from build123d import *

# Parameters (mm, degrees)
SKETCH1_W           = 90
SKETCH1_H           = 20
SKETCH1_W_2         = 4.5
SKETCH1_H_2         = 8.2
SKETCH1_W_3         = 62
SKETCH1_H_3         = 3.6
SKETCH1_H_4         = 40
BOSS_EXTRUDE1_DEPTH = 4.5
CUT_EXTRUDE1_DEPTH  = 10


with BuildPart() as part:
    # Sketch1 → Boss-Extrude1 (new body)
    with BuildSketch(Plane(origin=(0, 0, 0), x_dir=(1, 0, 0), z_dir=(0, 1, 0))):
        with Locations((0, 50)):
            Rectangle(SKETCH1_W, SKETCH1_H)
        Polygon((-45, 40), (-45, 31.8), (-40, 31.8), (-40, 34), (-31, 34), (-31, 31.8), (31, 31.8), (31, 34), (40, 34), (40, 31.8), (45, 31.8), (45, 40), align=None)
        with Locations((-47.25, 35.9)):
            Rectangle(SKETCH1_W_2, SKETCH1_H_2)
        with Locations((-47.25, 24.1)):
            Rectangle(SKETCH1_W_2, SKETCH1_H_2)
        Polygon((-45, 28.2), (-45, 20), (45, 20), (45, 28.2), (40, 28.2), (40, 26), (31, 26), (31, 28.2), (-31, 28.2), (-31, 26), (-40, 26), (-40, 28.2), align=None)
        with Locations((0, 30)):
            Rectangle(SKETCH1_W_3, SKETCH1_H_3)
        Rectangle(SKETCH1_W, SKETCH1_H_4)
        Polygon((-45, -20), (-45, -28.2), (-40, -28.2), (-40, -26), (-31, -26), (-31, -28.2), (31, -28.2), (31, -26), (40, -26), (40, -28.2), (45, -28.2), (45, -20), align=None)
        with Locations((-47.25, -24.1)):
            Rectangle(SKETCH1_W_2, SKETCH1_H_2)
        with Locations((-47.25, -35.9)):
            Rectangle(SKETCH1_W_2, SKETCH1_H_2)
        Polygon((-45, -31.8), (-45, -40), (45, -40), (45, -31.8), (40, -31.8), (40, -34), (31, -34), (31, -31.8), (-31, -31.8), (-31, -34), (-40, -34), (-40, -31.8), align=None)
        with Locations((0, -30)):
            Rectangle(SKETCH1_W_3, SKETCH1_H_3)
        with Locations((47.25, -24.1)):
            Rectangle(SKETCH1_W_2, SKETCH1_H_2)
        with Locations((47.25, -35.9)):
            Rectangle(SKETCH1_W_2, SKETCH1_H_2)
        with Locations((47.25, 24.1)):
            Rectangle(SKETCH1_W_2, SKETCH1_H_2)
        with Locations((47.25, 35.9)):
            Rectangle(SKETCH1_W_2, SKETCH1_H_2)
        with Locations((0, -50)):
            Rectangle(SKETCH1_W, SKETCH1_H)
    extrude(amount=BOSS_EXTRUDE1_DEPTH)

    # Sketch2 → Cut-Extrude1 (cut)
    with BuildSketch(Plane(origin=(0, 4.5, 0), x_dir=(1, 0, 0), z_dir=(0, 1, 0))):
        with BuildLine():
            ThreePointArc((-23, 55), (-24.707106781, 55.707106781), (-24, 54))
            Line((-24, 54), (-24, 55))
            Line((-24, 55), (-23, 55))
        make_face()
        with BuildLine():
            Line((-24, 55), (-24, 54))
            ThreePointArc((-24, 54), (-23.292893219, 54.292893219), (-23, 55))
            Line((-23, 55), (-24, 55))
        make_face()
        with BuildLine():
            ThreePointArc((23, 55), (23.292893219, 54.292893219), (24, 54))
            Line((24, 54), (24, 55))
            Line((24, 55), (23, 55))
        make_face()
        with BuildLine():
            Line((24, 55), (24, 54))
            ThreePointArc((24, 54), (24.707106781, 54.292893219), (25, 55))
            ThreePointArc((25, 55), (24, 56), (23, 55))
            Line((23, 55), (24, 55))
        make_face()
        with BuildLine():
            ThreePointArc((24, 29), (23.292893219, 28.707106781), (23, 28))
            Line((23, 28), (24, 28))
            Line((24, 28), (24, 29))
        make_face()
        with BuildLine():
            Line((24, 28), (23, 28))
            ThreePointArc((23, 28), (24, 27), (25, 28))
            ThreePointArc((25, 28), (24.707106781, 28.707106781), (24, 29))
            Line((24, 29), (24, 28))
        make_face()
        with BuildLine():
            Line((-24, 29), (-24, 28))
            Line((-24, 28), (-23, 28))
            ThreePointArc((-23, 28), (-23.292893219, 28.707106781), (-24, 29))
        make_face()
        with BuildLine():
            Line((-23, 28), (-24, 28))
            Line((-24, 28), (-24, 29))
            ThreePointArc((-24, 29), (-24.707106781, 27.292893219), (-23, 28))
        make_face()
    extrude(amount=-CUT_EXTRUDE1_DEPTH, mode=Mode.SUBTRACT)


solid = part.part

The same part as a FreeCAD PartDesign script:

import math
import FreeCAD as App
import Part
import Sketcher
from FreeCAD import Vector
Q = App.Units.Quantity


def add_polygon(sketch, points):
    """Adds a closed chain of lines whose ends are joined by coincident constraints."""
    first, n = sketch.GeometryCount, len(points)
    for a, b in zip(points, points[1:] + points[:1]):
        sketch.addGeometry(Part.LineSegment(App.Vector(*a, 0), App.Vector(*b, 0)), False)
    for i in range(n):
        sketch.addConstraint(Sketcher.Constraint("Coincident", first + i, 2, first + (i + 1) % n, 1))

doc = App.newDocument("Part")
body = doc.addObject("PartDesign::Body", "Body")

# Sketch on XZ plane
sketch1 = body.newObject("Sketcher::SketchObject", "Sketch")
sketch1.AttachmentSupport = (doc.getObject("XZ_Plane"), [""])
sketch1.MapMode = "FlatFace"
add_polygon(sketch1, [(-45, -60), (-45, -40), (-49.5, -40), (-49.5, -31.8), (-40, -31.8), (-40, -34), (-31, -34), (-31, -26), (-40, -26), (-40, -28.2), (-49.5, -28.2), (-49.5, -20), (-45, -20), (-45, 20), (-49.5, 20), (-49.5, 28.2), (-40, 28.2), (-40, 26), (-31, 26), (-31, 34), (-40, 34), (-40, 31.8), (-49.5, 31.8), (-49.5, 40), (-45, 40), (-45, 60), (45, 60), (45, 40), (49.5, 40), (49.5, 31.8), (40, 31.8), (40, 34), (31, 34), (31, 26), (40, 26), (40, 28.2), (49.5, 28.2), (49.5, 20), (45, 20), (45, -20), (49.5, -20), (49.5, -28.2), (40, -28.2), (40, -26), (31, -26), (31, -34), (40, -34), (40, -31.8), (49.5, -31.8), (49.5, -40), (45, -40), (45, -60)])  # lines 0-51
sketch1.addConstraint(Sketcher.Constraint("Vertical", 0))
sketch1.addConstraint(Sketcher.Constraint("Horizontal", 1))
sketch1.addConstraint(Sketcher.Constraint("Vertical", 2))
sketch1.addConstraint(Sketcher.Constraint("Horizontal", 3))
sketch1.addConstraint(Sketcher.Constraint("Vertical", 4))
sketch1.addConstraint(Sketcher.Constraint("Horizontal", 5))
sketch1.addConstraint(Sketcher.Constraint("Vertical", 6))
sketch1.addConstraint(Sketcher.Constraint("Horizontal", 7))
sketch1.addConstraint(Sketcher.Constraint("Vertical", 8))
sketch1.addConstraint(Sketcher.Constraint("Horizontal", 9))
sketch1.addConstraint(Sketcher.Constraint("Vertical", 10))
sketch1.addConstraint(Sketcher.Constraint("Horizontal", 11))
sketch1.addConstraint(Sketcher.Constraint("Vertical", 12))
sketch1.addConstraint(Sketcher.Constraint("Horizontal", 13))
sketch1.addConstraint(Sketcher.Constraint("Vertical", 14))
sketch1.addConstraint(Sketcher.Constraint("Horizontal", 15))
sketch1.addConstraint(Sketcher.Constraint("Vertical", 16))
sketch1.addConstraint(Sketcher.Constraint("Horizontal", 17))
sketch1.addConstraint(Sketcher.Constraint("Vertical", 18))
sketch1.addConstraint(Sketcher.Constraint("Horizontal", 19))
sketch1.addConstraint(Sketcher.Constraint("Vertical", 20))
sketch1.addConstraint(Sketcher.Constraint("Horizontal", 21))
sketch1.addConstraint(Sketcher.Constraint("Vertical", 22))
sketch1.addConstraint(Sketcher.Constraint("Horizontal", 23))
sketch1.addConstraint(Sketcher.Constraint("Vertical", 24))
sketch1.addConstraint(Sketcher.Constraint("Horizontal", 25))
sketch1.addConstraint(Sketcher.Constraint("Vertical", 26))
sketch1.addConstraint(Sketcher.Constraint("Horizontal", 27))
sketch1.addConstraint(Sketcher.Constraint("Vertical", 28))
sketch1.addConstraint(Sketcher.Constraint("Horizontal", 29))
sketch1.addConstraint(Sketcher.Constraint("Vertical", 30))
sketch1.addConstraint(Sketcher.Constraint("Horizontal", 31))
sketch1.addConstraint(Sketcher.Constraint("Vertical", 32))
sketch1.addConstraint(Sketcher.Constraint("Horizontal", 33))
sketch1.addConstraint(Sketcher.Constraint("Vertical", 34))
sketch1.addConstraint(Sketcher.Constraint("Horizontal", 35))
sketch1.addConstraint(Sketcher.Constraint("Vertical", 36))
sketch1.addConstraint(Sketcher.Constraint("Horizontal", 37))
sketch1.addConstraint(Sketcher.Constraint("Vertical", 38))
sketch1.addConstraint(Sketcher.Constraint("Horizontal", 39))
sketch1.addConstraint(Sketcher.Constraint("Vertical", 40))
sketch1.addConstraint(Sketcher.Constraint("Horizontal", 41))
sketch1.addConstraint(Sketcher.Constraint("Vertical", 42))
sketch1.addConstraint(Sketcher.Constraint("Horizontal", 43))
sketch1.addConstraint(Sketcher.Constraint("Vertical", 44))
sketch1.addConstraint(Sketcher.Constraint("Horizontal", 45))
sketch1.addConstraint(Sketcher.Constraint("Vertical", 46))
sketch1.addConstraint(Sketcher.Constraint("Horizontal", 47))
sketch1.addConstraint(Sketcher.Constraint("Vertical", 48))
sketch1.addConstraint(Sketcher.Constraint("Horizontal", 49))
sketch1.addConstraint(Sketcher.Constraint("Vertical", 50))
sketch1.addConstraint(Sketcher.Constraint("Horizontal", 51))
sketch1.addConstraint(Sketcher.Constraint("Symmetric", 0, 2, 26, 2, -1, 1))
sketch1.addConstraint(Sketcher.Constraint("Symmetric", 2, 2, 28, 2, -1, 1))
sketch1.addConstraint(Sketcher.Constraint("Symmetric", 4, 2, 30, 2, -1, 1))
sketch1.addConstraint(Sketcher.Constraint("Symmetric", 6, 2, 32, 2, -1, 1))
sketch1.addConstraint(Sketcher.Constraint("Symmetric", 8, 2, 34, 2, -1, 1))
sketch1.addConstraint(Sketcher.Constraint("Symmetric", 10, 2, 36, 2, -1, 1))
sketch1.addConstraint(Sketcher.Constraint("Symmetric", 12, 2, 38, 2, -1, 1))
sketch1.addConstraint(Sketcher.Constraint("Symmetric", 14, 2, 40, 2, -1, 1))
sketch1.addConstraint(Sketcher.Constraint("Symmetric", 16, 2, 42, 2, -1, 1))
sketch1.addConstraint(Sketcher.Constraint("Symmetric", 18, 2, 44, 2, -1, 1))
sketch1.addConstraint(Sketcher.Constraint("Symmetric", 20, 2, 46, 2, -1, 1))
sketch1.addConstraint(Sketcher.Constraint("Symmetric", 22, 2, 48, 2, -1, 1))
sketch1.addConstraint(Sketcher.Constraint("Symmetric", 24, 2, 50, 2, -1, 1))
sketch1.addConstraint(Sketcher.Constraint("Symmetric", 23, 2, 26, 2, -2))
sketch1.addConstraint(Sketcher.Constraint("Symmetric", 21, 2, 28, 2, -2))
sketch1.addConstraint(Sketcher.Constraint("Symmetric", 19, 2, 30, 2, -2))
sketch1.addConstraint(Sketcher.Constraint("Symmetric", 17, 2, 32, 2, -2))
sketch1.addConstraint(Sketcher.Constraint("Symmetric", 15, 2, 34, 2, -2))
sketch1.addConstraint(Sketcher.Constraint("Symmetric", 13, 2, 36, 2, -2))
sketch1.addConstraint(Sketcher.Constraint("Vertical", 4, 2, 7, 2))
sketch1.addConstraint(Sketcher.Constraint("Vertical", 2, 2, 9, 2))
sketch1.addConstraint(Sketcher.Constraint("Vertical", 0, 2, 11, 2))
sketch1.addConstraint(Sketcher.Constraint("Equal", 4, 8))
sketch1.addConstraint(Sketcher.Constraint("Equal", 2, 10))
sketch1.addConstraint(Sketcher.Constraint("DistanceX", 5, 1, 5, 2, Q("9 mm")))
sketch1.addConstraint(Sketcher.Constraint("DistanceX", 25, 1, 25, 2, Q("90 mm")))
sketch1.addConstraint(Sketcher.Constraint("DistanceY", 0, 1, 0, 2, Q("20 mm")))
sketch1.addConstraint(Sketcher.Constraint("DistanceY", 6, 1, 6, 2, Q("8 mm")))
sketch1.addConstraint(Sketcher.Constraint("DistanceY", 12, 1, 12, 2, Q("40 mm")))
sketch1.addConstraint(Sketcher.Constraint("DistanceX", 1, 2, 1, 1, Q("4.5 mm")))
sketch1.addConstraint(Sketcher.Constraint("DistanceX", 3, 1, 3, 2, Q("9.5 mm")))
sketch1.addConstraint(Sketcher.Constraint("DistanceY", 2, 1, 2, 2, Q("8.2 mm")))
sketch1.addConstraint(Sketcher.Constraint("DistanceY", 4, 2, 4, 1, Q("2.2 mm")))
pad1 = body.newObject("PartDesign::Pad", "Pad")
pad1.Profile = sketch1
pad1.Length = 4.5
pad1.Reversed = True

# Sketch on XZ plane
sketch2 = body.newObject("Sketcher::SketchObject", "Sketch001")
sketch2.AttachmentSupport = (doc.getObject("XZ_Plane"), [""])
sketch2.MapMode = "FlatFace"
sketch2.AttachmentOffset = App.Placement(Vector(0, 0, -4.5), App.Rotation())
sketch2.addGeometry(Part.ArcOfCircle(Part.Circle(Vector(-24, -55, 0), Vector(0, 0, 1), 1), math.radians(90), math.radians(360)), False)
sketch2.addGeometry(Part.ArcOfCircle(Part.Circle(Vector(-24, -55, 0), Vector(0, 0, 1), 1), math.radians(0), math.radians(90)), False)
sketch2.addGeometry(Part.ArcOfCircle(Part.Circle(Vector(24, -55, 0), Vector(0, 0, 1), 1), math.radians(90), math.radians(180)), False)
sketch2.addGeometry(Part.ArcOfCircle(Part.Circle(Vector(24, -55, 0), Vector(0, 0, 1), 1), math.radians(0), math.radians(90)), False)
sketch2.addGeometry(Part.ArcOfCircle(Part.Circle(Vector(24, -55, 0), Vector(0, 0, 1), 1), math.radians(180), math.radians(360)), False)
sketch2.addGeometry(Part.ArcOfCircle(Part.Circle(Vector(24, -28, 0), Vector(0, 0, 1), 1), math.radians(-180), math.radians(-90)), False)
sketch2.addGeometry(Part.ArcOfCircle(Part.Circle(Vector(24, -28, 0), Vector(0, 0, 1), 1), math.radians(0), math.radians(180)), False)
sketch2.addGeometry(Part.ArcOfCircle(Part.Circle(Vector(24, -28, 0), Vector(0, 0, 1), 1), math.radians(-90), math.radians(0)), False)
sketch2.addGeometry(Part.ArcOfCircle(Part.Circle(Vector(-24, -28, 0), Vector(0, 0, 1), 1), math.radians(-90), math.radians(0)), False)
sketch2.addGeometry(Part.ArcOfCircle(Part.Circle(Vector(-24, -28, 0), Vector(0, 0, 1), 1), math.radians(0), math.radians(270)), False)
sketch2.addConstraint(Sketcher.Constraint("Tangent", 0, 1, 1, 2))
sketch2.addConstraint(Sketcher.Constraint("Coincident", 1, 1, 0, 2))
sketch2.addConstraint(Sketcher.Constraint("Tangent", 2, 1, 3, 2))
sketch2.addConstraint(Sketcher.Constraint("Tangent", 3, 1, 4, 2))
sketch2.addConstraint(Sketcher.Constraint("Tangent", 4, 1, 2, 2))
sketch2.addConstraint(Sketcher.Constraint("Tangent", 5, 1, 6, 2))
sketch2.addConstraint(Sketcher.Constraint("Tangent", 6, 1, 7, 2))
sketch2.addConstraint(Sketcher.Constraint("Tangent", 7, 1, 5, 2))
sketch2.addConstraint(Sketcher.Constraint("Tangent", 8, 1, 9, 2))
sketch2.addConstraint(Sketcher.Constraint("Coincident", 9, 1, 8, 2))
sketch2.addConstraint(Sketcher.Constraint("Equal", 1, 2))
sketch2.addConstraint(Sketcher.Constraint("Equal", 4, 5))
sketch2.addConstraint(Sketcher.Constraint("Equal", 7, 8))
sketch2.addConstraint(Sketcher.Constraint("Symmetric", 0, 3, 2, 3, -2))
sketch2.addConstraint(Sketcher.Constraint("Symmetric", 5, 3, 8, 3, -2))
sketch2.addConstraint(Sketcher.Constraint("Horizontal", 4, 3, 1, 1))
sketch2.addConstraint(Sketcher.Constraint("Horizontal", 1, 1, 3, 1))
sketch2.addConstraint(Sketcher.Constraint("Horizontal", 3, 1, 4, 1))
sketch2.addConstraint(Sketcher.Constraint("Horizontal", 9, 3, 5, 1))
sketch2.addConstraint(Sketcher.Constraint("Horizontal", 5, 1, 6, 1))
sketch2.addConstraint(Sketcher.Constraint("Horizontal", 6, 1, 9, 1))
sketch2.addConstraint(Sketcher.Constraint("Vertical", 4, 3, 5, 3))
sketch2.addConstraint(Sketcher.Constraint("Vertical", 9, 3, 0, 1))
sketch2.addConstraint(Sketcher.Constraint("Vertical", 7, 3, 2, 1))
sketch2.addConstraint(Sketcher.Constraint("Vertical", 2, 1, 7, 1))
sketch2.addConstraint(Sketcher.Constraint("Vertical", 0, 1, 8, 1))
sketch2.addConstraint(Sketcher.Constraint("Radius", 0, Q("1 mm")))
sketch2.addConstraint(Sketcher.Constraint("DistanceX", 0, 3, -1, 1, Q("24 mm")))
sketch2.addConstraint(Sketcher.Constraint("DistanceY", 0, 3, -1, 1, Q("55 mm")))
sketch2.addConstraint(Sketcher.Constraint("DistanceY", 5, 3, -1, 1, Q("28 mm")))
pocket1 = body.newObject("PartDesign::Pocket", "Pocket")
pocket1.Profile = sketch2
pocket1.Length = 10
pocket1.Reversed = True

doc.recompute()
